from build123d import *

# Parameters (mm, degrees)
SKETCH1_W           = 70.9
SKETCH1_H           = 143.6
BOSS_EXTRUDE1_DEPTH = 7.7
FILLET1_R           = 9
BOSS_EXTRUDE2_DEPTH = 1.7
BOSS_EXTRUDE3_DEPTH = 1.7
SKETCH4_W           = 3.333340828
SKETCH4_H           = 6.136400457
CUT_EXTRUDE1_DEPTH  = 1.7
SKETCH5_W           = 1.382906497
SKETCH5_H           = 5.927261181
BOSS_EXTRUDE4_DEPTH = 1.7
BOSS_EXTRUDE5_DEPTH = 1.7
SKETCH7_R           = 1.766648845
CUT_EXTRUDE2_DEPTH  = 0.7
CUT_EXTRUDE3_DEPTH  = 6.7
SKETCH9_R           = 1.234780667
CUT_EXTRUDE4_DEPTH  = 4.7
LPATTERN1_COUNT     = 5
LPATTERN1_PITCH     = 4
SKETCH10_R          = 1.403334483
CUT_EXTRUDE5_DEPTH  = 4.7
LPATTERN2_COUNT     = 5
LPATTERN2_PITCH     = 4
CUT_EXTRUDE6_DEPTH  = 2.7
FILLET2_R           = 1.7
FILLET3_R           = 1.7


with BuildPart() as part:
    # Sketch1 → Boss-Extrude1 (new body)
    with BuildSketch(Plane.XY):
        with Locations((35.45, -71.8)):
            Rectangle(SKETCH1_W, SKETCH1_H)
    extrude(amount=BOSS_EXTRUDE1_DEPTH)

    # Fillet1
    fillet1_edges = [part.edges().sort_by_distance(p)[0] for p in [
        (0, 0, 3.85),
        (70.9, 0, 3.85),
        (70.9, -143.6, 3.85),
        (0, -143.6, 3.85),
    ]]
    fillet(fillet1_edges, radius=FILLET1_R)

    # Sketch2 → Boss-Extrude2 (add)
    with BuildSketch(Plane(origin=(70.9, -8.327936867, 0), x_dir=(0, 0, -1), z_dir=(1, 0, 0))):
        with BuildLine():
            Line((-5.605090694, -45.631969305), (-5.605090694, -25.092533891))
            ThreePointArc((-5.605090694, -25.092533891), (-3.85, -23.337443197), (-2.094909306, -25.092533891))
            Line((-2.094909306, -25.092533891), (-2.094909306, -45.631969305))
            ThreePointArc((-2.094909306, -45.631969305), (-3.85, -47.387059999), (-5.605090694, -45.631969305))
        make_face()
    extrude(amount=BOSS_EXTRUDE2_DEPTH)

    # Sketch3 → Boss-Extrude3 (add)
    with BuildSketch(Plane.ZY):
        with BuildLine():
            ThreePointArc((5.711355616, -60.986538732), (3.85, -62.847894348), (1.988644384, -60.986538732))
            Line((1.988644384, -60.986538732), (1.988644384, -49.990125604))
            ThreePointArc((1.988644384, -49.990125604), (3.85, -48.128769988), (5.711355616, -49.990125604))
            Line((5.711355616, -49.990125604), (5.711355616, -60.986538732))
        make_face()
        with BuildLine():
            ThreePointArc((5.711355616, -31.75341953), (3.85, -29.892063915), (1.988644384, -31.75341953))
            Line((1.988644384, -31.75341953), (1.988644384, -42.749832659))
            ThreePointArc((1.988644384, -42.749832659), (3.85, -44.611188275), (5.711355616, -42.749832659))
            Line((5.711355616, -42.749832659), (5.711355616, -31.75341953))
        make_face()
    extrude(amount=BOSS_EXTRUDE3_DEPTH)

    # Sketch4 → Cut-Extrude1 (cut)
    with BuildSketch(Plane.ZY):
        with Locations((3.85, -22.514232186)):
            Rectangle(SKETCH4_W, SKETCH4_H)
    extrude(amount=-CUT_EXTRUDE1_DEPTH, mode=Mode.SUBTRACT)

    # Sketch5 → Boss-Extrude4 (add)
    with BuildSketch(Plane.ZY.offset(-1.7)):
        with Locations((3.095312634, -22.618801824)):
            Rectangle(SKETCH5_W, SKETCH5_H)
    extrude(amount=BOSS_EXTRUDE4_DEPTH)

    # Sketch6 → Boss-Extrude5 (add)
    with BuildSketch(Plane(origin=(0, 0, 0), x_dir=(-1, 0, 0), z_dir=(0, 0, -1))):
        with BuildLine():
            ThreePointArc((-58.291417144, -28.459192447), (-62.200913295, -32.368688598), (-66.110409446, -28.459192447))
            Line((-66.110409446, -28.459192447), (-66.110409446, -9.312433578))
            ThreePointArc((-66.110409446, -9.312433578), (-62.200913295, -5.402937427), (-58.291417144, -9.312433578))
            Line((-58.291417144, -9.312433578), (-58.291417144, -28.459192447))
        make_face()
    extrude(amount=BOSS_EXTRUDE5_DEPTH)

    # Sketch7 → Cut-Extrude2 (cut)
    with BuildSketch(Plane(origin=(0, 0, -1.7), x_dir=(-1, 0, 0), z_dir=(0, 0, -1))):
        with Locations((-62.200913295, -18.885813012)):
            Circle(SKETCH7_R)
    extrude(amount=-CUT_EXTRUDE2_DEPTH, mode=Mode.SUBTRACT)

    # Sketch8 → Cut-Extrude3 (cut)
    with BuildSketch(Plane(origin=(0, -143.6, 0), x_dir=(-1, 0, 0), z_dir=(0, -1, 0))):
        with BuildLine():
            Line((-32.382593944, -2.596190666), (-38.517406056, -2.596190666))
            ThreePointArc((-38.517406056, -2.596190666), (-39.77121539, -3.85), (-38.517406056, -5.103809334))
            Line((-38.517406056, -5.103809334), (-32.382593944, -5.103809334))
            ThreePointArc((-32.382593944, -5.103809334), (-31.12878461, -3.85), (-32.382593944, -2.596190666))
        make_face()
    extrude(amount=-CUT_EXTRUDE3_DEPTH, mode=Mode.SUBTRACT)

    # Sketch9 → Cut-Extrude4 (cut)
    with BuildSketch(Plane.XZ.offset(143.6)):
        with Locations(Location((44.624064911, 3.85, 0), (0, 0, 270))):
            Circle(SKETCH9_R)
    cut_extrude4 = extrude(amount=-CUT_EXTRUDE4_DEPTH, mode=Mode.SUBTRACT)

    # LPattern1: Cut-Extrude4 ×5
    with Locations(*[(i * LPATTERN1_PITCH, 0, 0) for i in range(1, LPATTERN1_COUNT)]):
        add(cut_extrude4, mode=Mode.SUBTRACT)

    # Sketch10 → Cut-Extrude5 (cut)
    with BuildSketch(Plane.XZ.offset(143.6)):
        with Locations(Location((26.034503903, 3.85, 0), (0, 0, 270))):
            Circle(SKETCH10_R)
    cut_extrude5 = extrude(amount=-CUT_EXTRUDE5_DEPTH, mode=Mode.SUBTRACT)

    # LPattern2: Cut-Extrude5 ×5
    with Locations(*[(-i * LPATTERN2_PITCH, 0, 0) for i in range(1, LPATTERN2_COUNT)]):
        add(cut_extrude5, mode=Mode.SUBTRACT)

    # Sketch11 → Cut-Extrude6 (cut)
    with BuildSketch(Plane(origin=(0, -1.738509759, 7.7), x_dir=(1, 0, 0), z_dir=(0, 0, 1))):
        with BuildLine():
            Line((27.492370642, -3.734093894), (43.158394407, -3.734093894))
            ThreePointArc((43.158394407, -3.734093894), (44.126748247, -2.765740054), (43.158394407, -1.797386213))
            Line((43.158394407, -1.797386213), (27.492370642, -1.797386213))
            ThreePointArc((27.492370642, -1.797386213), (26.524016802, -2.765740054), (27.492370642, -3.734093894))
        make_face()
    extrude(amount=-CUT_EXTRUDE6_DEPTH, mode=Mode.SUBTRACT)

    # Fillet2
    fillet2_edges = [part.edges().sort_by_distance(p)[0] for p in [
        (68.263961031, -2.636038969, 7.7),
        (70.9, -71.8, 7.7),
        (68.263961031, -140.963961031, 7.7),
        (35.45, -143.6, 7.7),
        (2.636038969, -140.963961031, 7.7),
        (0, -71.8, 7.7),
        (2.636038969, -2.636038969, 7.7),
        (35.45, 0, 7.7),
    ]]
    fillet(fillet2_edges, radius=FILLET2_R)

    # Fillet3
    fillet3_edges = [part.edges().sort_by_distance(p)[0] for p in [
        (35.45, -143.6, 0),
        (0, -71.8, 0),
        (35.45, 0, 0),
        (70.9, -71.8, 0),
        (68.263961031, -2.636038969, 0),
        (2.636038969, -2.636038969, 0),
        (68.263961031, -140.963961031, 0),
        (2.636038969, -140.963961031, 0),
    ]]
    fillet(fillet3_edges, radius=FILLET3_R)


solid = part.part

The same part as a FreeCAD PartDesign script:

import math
import FreeCAD as App
import Part
import Sketcher
from FreeCAD import Vector


def edges_at(feature, points):
    """Names of the edges that pass closest to the given points."""
    edges = feature.Shape.Edges
    near = lambda p: min(range(len(edges)), key=lambda i: edges[i].distToShape(Part.Vertex(*p))[0])
    return sorted({f"Edge{near(p) + 1}" for p in points})

doc = App.newDocument("Part")
params = doc.addObject("Spreadsheet::Sheet", "Params")
for row, (alias, value) in enumerate([
    ("sketch1_width", "70.9 mm"),
    ("sketch1_height", "143.6 mm"),
    ("pad1_length", "7.7 mm"),
    ("fillet_radius", "9 mm"),
    ("pad2_length", "1.7 mm"),
    ("pad3_length", "1.7 mm"),
    ("pocket1_length", "1.7 mm"),
    ("pad4_length", "1.7 mm"),
    ("pad5_length", "1.7 mm"),
    ("pocket2_length", "0.7 mm"),
    ("pocket3_length", "6.7 mm"),
    ("pocket4_length", "4.7 mm"),
    ("linearpattern_pitch", "4 mm"),
    ("pocket5_length", "4.7 mm"),
    ("linearpattern2_pitch", "4 mm"),
    ("pocket6_length", "2.7 mm"),
    ("fillet2_radius", "1.7 mm"),
    ("fillet3_radius", "1.7 mm"),
], start=1):
    params.set(f"A{row}", alias)
    params.set(f"B{row}", "=" + value)
    params.setAlias(f"B{row}", alias)

body = doc.addObject("PartDesign::Body", "Body")

# Sketch on XY plane
sketch1 = body.newObject("Sketcher::SketchObject", "Sketch")
sketch1.AttachmentSupport = (doc.getObject("XY_Plane"), [""])
sketch1.MapMode = "FlatFace"
sketch1.addGeometry([
    Part.LineSegment(Vector(0, 0, 0), Vector(0, -144, 0)),
    Part.LineSegment(Vector(0, -144, 0), Vector(71, -144, 0)),
    Part.LineSegment(Vector(71, -144, 0), Vector(71, 0, 0)),
    Part.LineSegment(Vector(71, 0, 0), Vector(0, 0, 0)),
], False)
sketch1.addConstraint([
    Sketcher.Constraint("Coincident", 0, 2, 1, 1),
    Sketcher.Constraint("Coincident", 1, 2, 2, 1),
    Sketcher.Constraint("Coincident", 2, 2, 3, 1),
    Sketcher.Constraint("Coincident", 3, 2, 0, 1),
    Sketcher.Constraint("Vertical", 0),
    Sketcher.Constraint("Horizontal", 1),
    Sketcher.Constraint("Vertical", 2),
    Sketcher.Constraint("Horizontal", 3),
    Sketcher.Constraint("Coincident", 3, 2, -1, 1),
    Sketcher.Constraint("DistanceX", 1, 1, 1, 2, 70.9),
    Sketcher.Constraint("DistanceY", 0, 2, 0, 1, 143.6),
])
sketch1.setExpression("Constraints[9]", "Params.sketch1_width")
sketch1.setExpression("Constraints[10]", "Params.sketch1_height")
pad1 = body.newObject("PartDesign::Pad", "Pad")
pad1.Profile = sketch1
pad1.setExpression("Length", "Params.pad1_length")
doc.recompute()

fillet = body.newObject("PartDesign::Fillet", "Fillet")
fillet.Base = (pad1, edges_at(pad1, [
    (0, 0, 3.85),
    (70.9, 0, 3.85),
    (70.9, -143.6, 3.85),
    (0, -143.6, 3.85),
]))
fillet.setExpression("Radius", "Params.fillet_radius")

# Sketch on YZ plane
sketch2 = body.newObject("Sketcher::SketchObject", "Sketch001")
sketch2.AttachmentSupport = (doc.getObject("YZ_Plane"), [""])
sketch2.MapMode = "FlatFace"
sketch2.AttachmentOffset = App.Placement(Vector(0, 0, 70.9), App.Rotation())
sketch2.addGeometry([
    Part.LineSegment(Vector(-33.4, 5.6, 0), Vector(-54, 5.6, 0)),
    Part.ArcOfCircle(Part.Circle(Vector(-54, 3.9, 0), Vector(0, 0, 1), 1.8), math.radians(90), math.radians(270)),
    Part.LineSegment(Vector(-54, 2.1, 0), Vector(-33.4, 2.1, 0)),
    Part.ArcOfCircle(Part.Circle(Vector(-33.4, 3.9, 0), Vector(0, 0, 1), 1.8), math.radians(-90), math.radians(90)),
], False)
sketch2.addConstraint([
    Sketcher.Constraint("Tangent", 0, 2, 1, 1),
    Sketcher.Constraint("Tangent", 1, 2, 2, 1),
    Sketcher.Constraint("Tangent", 2, 2, 3, 1),
    Sketcher.Constraint("Tangent", 3, 2, 0, 1),
    Sketcher.Constraint("Horizontal", 0),
    Sketcher.Constraint("Horizontal", 2),
    Sketcher.Constraint("DistanceY", -1, 1, 1, 3, 3.85),
    Sketcher.Constraint("Radius", 1, 1.755091),
    Sketcher.Constraint("DistanceX", 0, 2, 0, 1, 20.539435),
    Sketcher.Constraint("DistanceX", 3, 3, -1, 1, 33.420471),
])
pad2 = body.newObject("PartDesign::Pad", "Pad001")
pad2.Profile = sketch2
pad2.setExpression("Length", "Params.pad2_length")

# Sketch on YZ plane
sketch3 = body.newObject("Sketcher::SketchObject", "Sketch002")
sketch3.AttachmentSupport = (doc.getObject("YZ_Plane"), [""])
sketch3.MapMode = "FlatFace"
sketch3.addGeometry([
    Part.ArcOfCircle(Part.Circle(Vector(-61, 3.9, 0), Vector(0, 0, 1), 1.9), math.radians(90), math.radians(270)),  # 0
    Part.LineSegment(Vector(-61, 5.7, 0), Vector(-50, 5.7, 0)),  # 1
    Part.ArcOfCircle(Part.Circle(Vector(-50, 3.9, 0), Vector(0, 0, 1), 1.9), math.radians(-90), math.radians(90)),  # 2
    Part.LineSegment(Vector(-50, 2, 0), Vector(-61, 2, 0)),  # 3
    Part.ArcOfCircle(Part.Circle(Vector(-31.8, 3.9, 0), Vector(0, 0, 1), 1.9), math.radians(-90), math.radians(90)),  # 4
    Part.LineSegment(Vector(-31.8, 2, 0), Vector(-42.7, 2, 0)),  # 5
    Part.ArcOfCircle(Part.Circle(Vector(-42.7, 3.9, 0), Vector(0, 0, 1), 1.9), math.radians(90), math.radians(270)),  # 6
    Part.LineSegment(Vector(-42.7, 5.7, 0), Vector(-31.8, 5.7, 0)),  # 7
], False)
sketch3.addConstraint([
    Sketcher.Constraint("Tangent", 0, 1, 1, 1),
    Sketcher.Constraint("Tangent", 1, 2, 2, 2),
    Sketcher.Constraint("Tangent", 2, 1, 3, 1),
    Sketcher.Constraint("Tangent", 3, 2, 0, 2),
    Sketcher.Constraint("Tangent", 4, 1, 5, 1),
    Sketcher.Constraint("Tangent", 5, 2, 6, 2),
    Sketcher.Constraint("Tangent", 6, 1, 7, 1),
    Sketcher.Constraint("Tangent", 7, 2, 4, 2),
    Sketcher.Constraint("Horizontal", 1),
    Sketcher.Constraint("Horizontal", 3),
    Sketcher.Constraint("Horizontal", 5),
    Sketcher.Constraint("Horizontal", 7),
    Sketcher.Constraint("Equal", 2, 4),
    Sketcher.Constraint("Horizontal", 2, 3, 4, 3),
    Sketcher.Constraint("Equal", 3, 5),
    Sketcher.Constraint("DistanceY", -1, 1, 0, 3, 3.85),
    Sketcher.Constraint("Radius", 0, 1.861356),
    Sketcher.Constraint("DistanceX", 1, 1, 1, 2, 10.996413),
    Sketcher.Constraint("DistanceX", 0, 3, -1, 1, 60.986539),
    Sketcher.Constraint("DistanceX", 4, 3, -1, 1, 31.75342),
])
pad3 = body.newObject("PartDesign::Pad", "Pad002")
pad3.Profile = sketch3
pad3.setExpression("Length", "Params.pad3_length")
pad3.Reversed = True

# Sketch on YZ plane
sketch4 = body.newObject("Sketcher::SketchObject", "Sketch003")
sketch4.AttachmentSupport = (doc.getObject("YZ_Plane"), [""])
sketch4.MapMode = "FlatFace"
sketch4.addGeometry([
    Part.LineSegment(Vector(-19.4, 2.2, 0), Vector(-25.6, 2.2, 0)),
    Part.LineSegment(Vector(-25.6, 2.2, 0), Vector(-25.6, 5.5, 0)),
    Part.LineSegment(Vector(-25.6, 5.5, 0), Vector(-19.4, 5.5, 0)),
    Part.LineSegment(Vector(-19.4, 5.5, 0), Vector(-19.4, 2.2, 0)),
], False)
sketch4.addConstraint([
    Sketcher.Constraint("Coincident", 0, 2, 1, 1),
    Sketcher.Constraint("Coincident", 1, 2, 2, 1),
    Sketcher.Constraint("Coincident", 2, 2, 3, 1),
    Sketcher.Constraint("Coincident", 3, 2, 0, 1),
    Sketcher.Constraint("Horizontal", 0),
    Sketcher.Constraint("Vertical", 1),
    Sketcher.Constraint("Horizontal", 2),
    Sketcher.Constraint("Vertical", 3),
    Sketcher.Constraint("DistanceX", 0, 2, 0, 1, 6.1364),
    Sketcher.Constraint("DistanceY", 1, 1, 1, 2, 3.333341),
    Sketcher.Constraint("DistanceY", -1, 1, 0, 2, 2.18333),
    Sketcher.Constraint("DistanceX", 2, 2, -1, 1, 19.446032),
])
pocket1 = body.newObject("PartDesign::Pocket", "Pocket")
pocket1.Profile = sketch4
pocket1.setExpression("Length", "Params.pocket1_length")
pocket1.Reversed = True

# Sketch on YZ plane
sketch5 = body.newObject("Sketcher::SketchObject", "Sketch004")
sketch5.AttachmentSupport = (doc.getObject("YZ_Plane"), [""])
sketch5.MapMode = "FlatFace"
sketch5.AttachmentOffset = App.Placement(Vector(0, 0, 1.7), App.Rotation())
sketch5.addGeometry([
    Part.LineSegment(Vector(-19.7, 2.4, 0), Vector(-25.6, 2.4, 0)),
    Part.LineSegment(Vector(-25.6, 2.4, 0), Vector(-25.6, 3.8, 0)),
    Part.LineSegment(Vector(-25.6, 3.8, 0), Vector(-19.7, 3.8, 0)),
    Part.LineSegment(Vector(-19.7, 3.8, 0), Vector(-19.7, 2.4, 0)),
], False)
sketch5.addConstraint([
    Sketcher.Constraint("Coincident", 0, 2, 1, 1),
    Sketcher.Constraint("Coincident", 1, 2, 2, 1),
    Sketcher.Constraint("Coincident", 2, 2, 3, 1),
    Sketcher.Constraint("Coincident", 3, 2, 0, 1),
    Sketcher.Constraint("Horizontal", 0),
    Sketcher.Constraint("Vertical", 1),
    Sketcher.Constraint("Horizontal", 2),
    Sketcher.Constraint("Vertical", 3),
    Sketcher.Constraint("DistanceX", 0, 2, 0, 1, 5.927261),
    Sketcher.Constraint("DistanceY", 1, 1, 1, 2, 1.382906),
    Sketcher.Constraint("DistanceY", -1, 1, 0, 2, 2.403859),
    Sketcher.Constraint("DistanceX", 2, 2, -1, 1, 19.655171),
])
pad4 = body.newObject("PartDesign::Pad", "Pad003")
pad4.Profile = sketch5
pad4.setExpression("Length", "Params.pad4_length")
pad4.Reversed = True

# Sketch on XY plane
sketch6 = body.newObject("Sketcher::SketchObject", "Sketch005")
sketch6.AttachmentSupport = (doc.getObject("XY_Plane"), [""])
sketch6.MapMode = "FlatFace"
sketch6.addGeometry([
    Part.ArcOfCircle(Part.Circle(Vector(62.2, -28.5, 0), Vector(0, 0, 1), 3.9), math.radians(180), math.radians(360)),
    Part.LineSegment(Vector(58.3, -28.5, 0), Vector(58.3, -9.3, 0)),
    Part.ArcOfCircle(Part.Circle(Vector(62.2, -9.3, 0), Vector(0, 0, 1), 3.9), math.radians(0), math.radians(180)),
    Part.LineSegment(Vector(66.1, -9.3, 0), Vector(66.1, -28.5, 0)),
], False)
sketch6.addConstraint([
    Sketcher.Constraint("Tangent", 0, 1, 1, 1),
    Sketcher.Constraint("Tangent", 1, 2, 2, 2),
    Sketcher.Constraint("Tangent", 2, 1, 3, 1),
    Sketcher.Constraint("Tangent", 3, 2, 0, 2),
    Sketcher.Constraint("Vertical", 1),
    Sketcher.Constraint("Vertical", 3),
    Sketcher.Constraint("Radius", 0, 3.909496),
    Sketcher.Constraint("DistanceY", 1, 1, 1, 2, 19.146759),
    Sketcher.Constraint("DistanceX", -1, 1, 2, 1, 66.110409),
    Sketcher.Constraint("DistanceY", 0, 3, -1, 1, 28.459192),
])
pad5 = body.newObject("PartDesign::Pad", "Pad004")
pad5.Profile = sketch6
pad5.setExpression("Length", "Params.pad5_length")
pad5.Reversed = True

# Sketch on XY plane
sketch7 = body.newObject("Sketcher::SketchObject", "Sketch006")
sketch7.AttachmentSupport = (doc.getObject("XY_Plane"), [""])
sketch7.MapMode = "FlatFace"
sketch7.AttachmentOffset = App.Placement(Vector(0, 0, -1.7), App.Rotation())
sketch7.addGeometry(Part.Circle(Vector(62.2, -18.9, 0), Vector(0, 0, 1), 1.8), False)
sketch7.addConstraint([
    Sketcher.Constraint("Diameter", 0, 3.533298),
    Sketcher.Constraint("DistanceX", -1, 1, 0, 3, 62.200913),
    Sketcher.Constraint("DistanceY", 0, 3, -1, 1, 18.885813),
])
pocket2 = body.newObject("PartDesign::Pocket", "Pocket001")
pocket2.Profile = sketch7
pocket2.setExpression("Length", "Params.pocket2_length")
pocket2.Reversed = True

# Sketch on XZ plane
sketch8 = body.newObject("Sketcher::SketchObject", "Sketch007")
sketch8.AttachmentSupport = (doc.getObject("XZ_Plane"), [""])
sketch8.MapMode = "FlatFace"
sketch8.AttachmentOffset = App.Placement(Vector(0, 0, 143.6), App.Rotation())
sketch8.addGeometry([
    Part.LineSegment(Vector(32.4, 2.6, 0), Vector(38.5, 2.6, 0)),
    Part.ArcOfCircle(Part.Circle(Vector(38.5, 3.9, 0), Vector(0, 0, 1), 1.3), math.radians(-90), math.radians(90)),
    Part.LineSegment(Vector(38.5, 5.1, 0), Vector(32.4, 5.1, 0)),
    Part.ArcOfCircle(Part.Circle(Vector(32.4, 3.9, 0), Vector(0, 0, 1), 1.3), math.radians(90), math.radians(270)),
], False)
sketch8.addConstraint([
    Sketcher.Constraint("Tangent", 0, 2, 1, 1),
    Sketcher.Constraint("Tangent", 1, 2, 2, 1),
    Sketcher.Constraint("Tangent", 2, 2, 3, 1),
    Sketcher.Constraint("Tangent", 3, 2, 0, 1),
    Sketcher.Constraint("Horizontal", 0),
    Sketcher.Constraint("Horizontal", 2),
    Sketcher.Constraint("DistanceY", -1, 1, 1, 3, 3.85),
    Sketcher.Constraint("Radius", 1, 1.253809),
    Sketcher.Constraint("DistanceX", 0, 1, 0, 2, 6.134812),
    Sketcher.Constraint("DistanceX", -1, 1, 1, 3, 38.517406),
])
pocket3 = body.newObject("PartDesign::Pocket", "Pocket002")
pocket3.Profile = sketch8
pocket3.setExpression("Length", "Params.pocket3_length")

# Sketch on XZ plane
sketch9 = body.newObject("Sketcher::SketchObject", "Sketch008")
sketch9.AttachmentSupport = (doc.getObject("XZ_Plane"), [""])
sketch9.MapMode = "FlatFace"
sketch9.AttachmentOffset = App.Placement(Vector(0, 0, 143.6), App.Rotation())
sketch9.addGeometry(Part.Circle(Vector(44.6, 3.9, 0), Vector(0, 0, 1), 1.2), False)
sketch9.addConstraint([
    Sketcher.Constraint("Diameter", 0, 2.469561),
    Sketcher.Constraint("DistanceY", -1, 1, 0, 3, 3.85),
    Sketcher.Constraint("DistanceX", -1, 1, 0, 3, 44.624065),
])
pocket4 = body.newObject("PartDesign::Pocket", "Pocket003")
pocket4.Profile = sketch9
pocket4.setExpression("Length", "Params.pocket4_length")
doc.recompute()

linearpattern = body.newObject("PartDesign::LinearPattern", "LinearPattern")
linearpattern.Originals = [pocket4]
linearpattern.Direction = (doc.getObject("X_Axis"), [""])
linearpattern.Mode = "offset"
linearpattern.setExpression("Offset", "Params.linearpattern_pitch")
linearpattern.Occurrences = 5
body.Tip = linearpattern

# Sketch on XZ plane
sketch10 = body.newObject("Sketcher::SketchObject", "Sketch009")
sketch10.AttachmentSupport = (doc.getObject("XZ_Plane"), [""])
sketch10.MapMode = "FlatFace"
sketch10.AttachmentOffset = App.Placement(Vector(0, 0, 143.6), App.Rotation())
sketch10.addGeometry(Part.Circle(Vector(26, 3.9, 0), Vector(0, 0, 1), 1.4), False)
sketch10.addConstraint([
    Sketcher.Constraint("Diameter", 0, 2.806669),
    Sketcher.Constraint("DistanceY", -1, 1, 0, 3, 3.85),
    Sketcher.Constraint("DistanceX", -1, 1, 0, 3, 26.034504),
])
pocket5 = body.newObject("PartDesign::Pocket", "Pocket004")
pocket5.Profile = sketch10
pocket5.setExpression("Length", "Params.pocket5_length")
doc.recompute()

linearpattern2 = body.newObject("PartDesign::LinearPattern", "LinearPattern001")
linearpattern2.Originals = [pocket5]
linearpattern2.Direction = (doc.getObject("X_Axis"), [""])
linearpattern2.Mode = "offset"
linearpattern2.setExpression("Offset", "Params.linearpattern2_pitch")
linearpattern2.Occurrences = 5
linearpattern2.Reversed = True
body.Tip = linearpattern2

# Sketch on XY plane
sketch11 = body.newObject("Sketcher::SketchObject", "Sketch010")
sketch11.AttachmentSupport = (doc.getObject("XY_Plane"), [""])
sketch11.MapMode = "FlatFace"
sketch11.AttachmentOffset = App.Placement(Vector(0, 0, 7.7), App.Rotation())
sketch11.addGeometry([
    Part.LineSegment(Vector(27.5, -5.5, 0), Vector(43.2, -5.5, 0)),
    Part.ArcOfCircle(Part.Circle(Vector(43.2, -4.5, 0), Vector(0, 0, 1), 1), math.radians(-90), math.radians(90)),
    Part.LineSegment(Vector(43.2, -3.5, 0), Vector(27.5, -3.5, 0)),
    Part.ArcOfCircle(Part.Circle(Vector(27.5, -4.5, 0), Vector(0, 0, 1), 1), math.radians(90), math.radians(270)),
], False)
sketch11.addConstraint([
    Sketcher.Constraint("Tangent", 0, 2, 1, 1),
    Sketcher.Constraint("Tangent", 1, 2, 2, 1),
    Sketcher.Constraint("Tangent", 2, 2, 3, 1),
    Sketcher.Constraint("Tangent", 3, 2, 0, 1),
    Sketcher.Constraint("Horizontal", 0),
    Sketcher.Constraint("Horizontal", 2),
    Sketcher.Constraint("Radius", 1, 0.968354),
    Sketcher.Constraint("DistanceX", 0, 1, 0, 2, 15.666024),
    Sketcher.Constraint("DistanceY", 1, 3, -1, 1, 4.50425),
    Sketcher.Constraint("DistanceX", -1, 1, 3, 3, 27.492371),
])
pocket6 = body.newObject("PartDesign::Pocket", "Pocket005")
pocket6.Profile = sketch11
pocket6.setExpression("Length", "Params.pocket6_length")
doc.recompute()

fillet2 = body.newObject("PartDesign::Fillet", "Fillet001")
fillet2.Base = (pocket6, edges_at(pocket6, [
    (68.264, -2.636, 7.7),
    (70.9, -71.8, 7.7),
    (68.264, -140.964, 7.7),
    (35.45, -143.6, 7.7),
    (2.636, -140.964, 7.7),
    (0, -71.8, 7.7),
    (2.636, -2.636, 7.7),
    (35.45, 0, 7.7),
]))
fillet2.setExpression("Radius", "Params.fillet2_radius")
doc.recompute()

fillet3 = body.newObject("PartDesign::Fillet", "Fillet002")
fillet3.Base = (fillet2, edges_at(fillet2, [
    (35.45, -143.6, 0),
    (0, -71.8, 0),
    (35.45, 0, 0),
    (70.9, -71.8, 0),
    (68.264, -2.636, 0),
    (2.636, -2.636, 0),
    (68.264, -140.964, 0),
    (2.636, -140.964, 0),
]))
fillet3.setExpression("Radius", "Params.fillet3_radius")

doc.recompute()
